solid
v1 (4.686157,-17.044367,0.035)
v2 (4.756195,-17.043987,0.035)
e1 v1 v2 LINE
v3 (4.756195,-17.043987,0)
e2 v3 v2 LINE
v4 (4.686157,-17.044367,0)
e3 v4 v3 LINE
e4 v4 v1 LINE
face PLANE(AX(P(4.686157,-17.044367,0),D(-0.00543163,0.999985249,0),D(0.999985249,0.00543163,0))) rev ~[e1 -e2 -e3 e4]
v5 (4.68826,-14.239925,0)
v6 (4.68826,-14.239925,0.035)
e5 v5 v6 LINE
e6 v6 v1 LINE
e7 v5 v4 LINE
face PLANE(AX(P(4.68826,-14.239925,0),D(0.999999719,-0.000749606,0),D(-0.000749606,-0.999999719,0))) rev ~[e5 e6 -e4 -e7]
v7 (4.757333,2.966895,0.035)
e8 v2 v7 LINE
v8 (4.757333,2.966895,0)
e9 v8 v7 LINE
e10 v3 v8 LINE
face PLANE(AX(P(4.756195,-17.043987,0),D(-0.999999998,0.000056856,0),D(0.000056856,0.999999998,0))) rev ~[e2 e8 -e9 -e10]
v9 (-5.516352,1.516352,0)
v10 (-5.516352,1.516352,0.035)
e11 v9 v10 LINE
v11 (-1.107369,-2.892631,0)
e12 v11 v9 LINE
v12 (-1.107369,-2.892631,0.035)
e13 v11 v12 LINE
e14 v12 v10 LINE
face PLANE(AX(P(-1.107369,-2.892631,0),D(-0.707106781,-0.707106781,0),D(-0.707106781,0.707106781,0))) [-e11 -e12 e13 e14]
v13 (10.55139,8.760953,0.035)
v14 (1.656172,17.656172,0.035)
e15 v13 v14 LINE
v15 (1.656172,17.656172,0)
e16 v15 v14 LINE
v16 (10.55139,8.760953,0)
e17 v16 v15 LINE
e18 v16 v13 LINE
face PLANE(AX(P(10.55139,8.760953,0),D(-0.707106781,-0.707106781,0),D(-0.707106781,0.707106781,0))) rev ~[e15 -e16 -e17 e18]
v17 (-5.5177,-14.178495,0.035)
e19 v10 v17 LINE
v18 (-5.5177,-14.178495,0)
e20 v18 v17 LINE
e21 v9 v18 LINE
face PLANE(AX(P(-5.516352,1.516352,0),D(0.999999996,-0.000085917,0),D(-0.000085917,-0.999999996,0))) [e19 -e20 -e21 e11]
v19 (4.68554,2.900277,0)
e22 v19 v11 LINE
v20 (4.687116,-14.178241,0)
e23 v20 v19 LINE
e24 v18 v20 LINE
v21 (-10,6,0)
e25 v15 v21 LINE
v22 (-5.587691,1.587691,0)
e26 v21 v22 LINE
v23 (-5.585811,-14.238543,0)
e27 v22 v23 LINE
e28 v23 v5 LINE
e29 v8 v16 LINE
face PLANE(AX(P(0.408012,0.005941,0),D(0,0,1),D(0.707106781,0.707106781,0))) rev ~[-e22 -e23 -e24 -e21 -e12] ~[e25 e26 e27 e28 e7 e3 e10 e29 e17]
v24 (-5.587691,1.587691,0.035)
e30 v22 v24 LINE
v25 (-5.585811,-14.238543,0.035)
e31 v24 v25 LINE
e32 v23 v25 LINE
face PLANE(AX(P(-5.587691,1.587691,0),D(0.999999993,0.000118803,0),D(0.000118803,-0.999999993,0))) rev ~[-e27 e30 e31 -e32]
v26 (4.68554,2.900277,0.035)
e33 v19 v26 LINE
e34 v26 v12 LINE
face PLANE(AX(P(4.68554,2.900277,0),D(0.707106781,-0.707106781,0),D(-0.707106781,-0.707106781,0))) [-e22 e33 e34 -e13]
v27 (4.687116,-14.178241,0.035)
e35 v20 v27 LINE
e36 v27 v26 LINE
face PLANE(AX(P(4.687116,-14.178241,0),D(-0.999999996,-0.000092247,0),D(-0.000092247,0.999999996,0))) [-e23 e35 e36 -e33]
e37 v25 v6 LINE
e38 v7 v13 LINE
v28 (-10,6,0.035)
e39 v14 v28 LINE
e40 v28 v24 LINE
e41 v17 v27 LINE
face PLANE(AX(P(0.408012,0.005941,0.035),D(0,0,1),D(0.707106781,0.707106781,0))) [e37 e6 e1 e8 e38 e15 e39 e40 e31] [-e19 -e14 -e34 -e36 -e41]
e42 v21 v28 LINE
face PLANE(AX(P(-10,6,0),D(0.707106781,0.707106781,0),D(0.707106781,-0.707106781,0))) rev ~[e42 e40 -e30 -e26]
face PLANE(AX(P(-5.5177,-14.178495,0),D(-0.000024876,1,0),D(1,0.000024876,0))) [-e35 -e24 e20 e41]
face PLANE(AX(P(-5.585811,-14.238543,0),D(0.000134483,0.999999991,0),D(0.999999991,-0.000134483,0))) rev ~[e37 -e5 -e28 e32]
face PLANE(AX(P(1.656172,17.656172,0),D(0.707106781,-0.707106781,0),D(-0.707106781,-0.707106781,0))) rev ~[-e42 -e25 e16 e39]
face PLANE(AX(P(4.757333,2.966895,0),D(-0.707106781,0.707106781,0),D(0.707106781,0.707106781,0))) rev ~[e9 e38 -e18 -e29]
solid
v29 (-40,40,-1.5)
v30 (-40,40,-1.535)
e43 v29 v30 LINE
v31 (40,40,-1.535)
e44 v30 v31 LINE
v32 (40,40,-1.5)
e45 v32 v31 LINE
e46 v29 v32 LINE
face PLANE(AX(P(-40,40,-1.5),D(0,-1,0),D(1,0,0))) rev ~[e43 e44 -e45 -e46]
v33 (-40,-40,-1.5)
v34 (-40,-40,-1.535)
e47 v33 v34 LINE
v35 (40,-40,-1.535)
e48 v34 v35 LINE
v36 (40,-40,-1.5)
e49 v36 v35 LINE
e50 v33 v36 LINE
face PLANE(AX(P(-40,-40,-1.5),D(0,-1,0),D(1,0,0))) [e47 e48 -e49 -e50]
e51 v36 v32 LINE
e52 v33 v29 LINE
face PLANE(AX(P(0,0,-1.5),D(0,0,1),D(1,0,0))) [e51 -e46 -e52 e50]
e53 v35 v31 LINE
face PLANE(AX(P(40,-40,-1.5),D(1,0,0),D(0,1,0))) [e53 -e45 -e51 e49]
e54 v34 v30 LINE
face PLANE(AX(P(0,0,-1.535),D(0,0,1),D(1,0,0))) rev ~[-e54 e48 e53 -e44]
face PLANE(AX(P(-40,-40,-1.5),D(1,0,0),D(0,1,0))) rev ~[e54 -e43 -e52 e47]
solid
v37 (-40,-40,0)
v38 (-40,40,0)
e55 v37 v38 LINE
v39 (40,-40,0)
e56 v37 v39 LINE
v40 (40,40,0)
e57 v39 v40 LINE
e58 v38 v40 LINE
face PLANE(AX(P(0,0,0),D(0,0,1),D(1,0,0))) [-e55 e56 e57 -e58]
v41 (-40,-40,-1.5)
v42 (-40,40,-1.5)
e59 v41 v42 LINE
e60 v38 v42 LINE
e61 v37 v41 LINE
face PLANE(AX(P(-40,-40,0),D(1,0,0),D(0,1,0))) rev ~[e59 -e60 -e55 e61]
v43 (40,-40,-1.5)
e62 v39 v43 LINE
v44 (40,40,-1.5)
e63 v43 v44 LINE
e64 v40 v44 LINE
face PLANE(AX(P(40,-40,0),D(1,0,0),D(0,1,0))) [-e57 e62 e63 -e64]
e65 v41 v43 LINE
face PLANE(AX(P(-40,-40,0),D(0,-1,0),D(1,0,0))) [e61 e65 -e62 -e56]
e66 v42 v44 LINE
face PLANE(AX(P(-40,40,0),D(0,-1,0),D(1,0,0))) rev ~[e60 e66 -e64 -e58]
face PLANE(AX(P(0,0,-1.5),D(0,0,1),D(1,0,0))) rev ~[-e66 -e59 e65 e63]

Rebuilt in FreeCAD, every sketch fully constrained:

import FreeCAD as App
import Part
import Sketcher

V = App.Vector


def add_polygon(sketch, points):
    """Adds a closed chain of lines whose ends are joined by coincident constraints."""
    first, n = sketch.GeometryCount, len(points)
    for a, b in zip(points, points[1:] + points[:1]):
        sketch.addGeometry(Part.LineSegment(App.Vector(*a, 0), App.Vector(*b, 0)), False)
    for i in range(n):
        sketch.addConstraint(Sketcher.Constraint("Coincident", first + i, 2, first + (i + 1) % n, 1))

doc = App.newDocument("Part")
params = doc.addObject("Spreadsheet::Sheet", "Params")
for row, (alias, value) in enumerate([
    ("pad1_length", "0.035 mm"),
    ("pad2_length", "0.035 mm"),
    ("sketch3_width", "80 mm"),
    ("pad3_length", "1.5 mm"),
    ("sketch4_width", "80 mm"),
    ("pad4_length", "0.035 mm"),
], start=1):
    params.set(f"A{row}", alias)
    params.set(f"B{row}", "=" + value)
    params.setAlias(f"B{row}", alias)

body = doc.addObject("PartDesign::Body", "Body")

sketch1 = doc.addObject("Sketcher::SketchObject", "Sketch")
body.addObject(sketch1)
sketch1.AttachmentSupport = (doc.XY_Plane, [""])
sketch1.MapMode = "FlatFace"
add_polygon(sketch1, [(-11, -17), (-4, -25), (8, -13), (0, -13), (0, -6)])
sketch1.addConstraint(Sketcher.Constraint("Horizontal", 2))
sketch1.addConstraint(Sketcher.Constraint("Vertical", 3))
sketch1.addConstraint(Sketcher.Constraint("PointOnObject", 2, 2, -2))
sketch1.addConstraint(Sketcher.Constraint("DistanceX", 2, 2, 2, 1, 8.19241))
sketch1.addConstraint(Sketcher.Constraint("Distance", 1, 17.078518))
sketch1.addConstraint(Sketcher.Constraint("DistanceY", 3, 1, 3, 2, 6.235244))
sketch1.addConstraint(Sketcher.Constraint("DistanceX", 0, 2, -1, 1, 3.882812))
sketch1.addConstraint(Sketcher.Constraint("DistanceY", 0, 2, -1, 1, 24.65353))
sketch1.addConstraint(Sketcher.Constraint("DistanceY", 4, 2, 3, 2, 11.096979))
sketch1.addConstraint(Sketcher.Constraint("Distance", 0, 10.204816))
pad1 = doc.addObject("PartDesign::Pad", "Pad")
body.addObject(pad1)
pad1.Profile = sketch1
pad1.setExpression("Length", "Params.pad1_length")
body2 = doc.addObject("PartDesign::Body", "Body001")

sketch2 = doc.addObject("Sketcher::SketchObject", "Sketch001")
body2.addObject(sketch2)
sketch2.AttachmentSupport = (doc.getObject("XY_Plane001"), [""])
sketch2.MapMode = "FlatFace"
add_polygon(sketch2, [(0, 0), (0, -6.24), (-11.19, -17.43), (-3.93, -24.7), (-5.91, -26.68), (-5.86, -26.73), (8.29, -12.58), (16.48, -12.58), (16.48, 0)])
sketch2.addConstraint(Sketcher.Constraint("Vertical", 0))
sketch2.addConstraint(Sketcher.Constraint("Horizontal", 6))
sketch2.addConstraint(Sketcher.Constraint("Vertical", 7))
sketch2.addConstraint(Sketcher.Constraint("Horizontal", 8))
sketch2.addConstraint(Sketcher.Constraint("Coincident", 8, 2, -1, 1))
sketch2.addConstraint(Sketcher.Constraint("DistanceY", 7, 1, 7, 2, 12.579739))
sketch2.addConstraint(Sketcher.Constraint("DistanceX", 2, 2, 5, 2, 12.215901))
sketch2.addConstraint(Sketcher.Constraint("Distance", 2, 10.274071))
sketch2.addConstraint(Sketcher.Constraint("Distance", 4, 0.070039))
sketch2.addConstraint(Sketcher.Constraint("DistanceX", 6, 1, 6, 2, 8.194035))
sketch2.addConstraint(Sketcher.Constraint("DistanceX", 8, 2, 8, 1, 16.484316))
sketch2.addConstraint(Sketcher.Constraint("DistanceY", 0, 2, 0, 1, 6.239947))
sketch2.addConstraint(Sketcher.Constraint("DistanceY", 3, 2, -1, 1, 26.67951))
sketch2.addConstraint(Sketcher.Constraint("DistanceY", 2, 2, 0, 2, 18.458009))
sketch2.addConstraint(Sketcher.Constraint("DistanceX", 1, 2, 3, 2, 5.279361))
sketch2.addConstraint(Sketcher.Constraint("DistanceY", 4, 2, 2, 2, 2.030809))
sketch2.addConstraint(Sketcher.Constraint("DistanceY", 4, 2, 1, 2, 9.296651))
pad2 = doc.addObject("PartDesign::Pad", "Pad001")
body2.addObject(pad2)
pad2.Profile = sketch2
pad2.setExpression("Length", "Params.pad2_length")
doc.recompute()

boolean = doc.addObject("PartDesign::Boolean", "Boolean")
body2.addObject(boolean)
boolean.Type = "Cut"
boolean.addObjects([body])
body3 = doc.addObject("PartDesign::Body", "Body002")
doc.recompute()

body2.Placement = App.Placement(V(-10, 6, 0), App.Rotation(V(0, 0, 1), 45))
boolean2 = doc.addObject("PartDesign::Boolean", "Boolean001")
body3.addObject(boolean2)
boolean2.Type = "Fuse"
boolean2.addObjects([body2])
body4 = doc.addObject("PartDesign::Body", "Body003")

sketch3 = doc.addObject("Sketcher::SketchObject", "Sketch002")
body4.addObject(sketch3)
sketch3.AttachmentSupport = (doc.getObject("XY_Plane003"), [""])
sketch3.MapMode = "FlatFace"
add_polygon(sketch3, [(-40, 40), (-40, -40), (40, -40), (40, 40)])
sketch3.addConstraint(Sketcher.Constraint("Vertical", 0))
sketch3.addConstraint(Sketcher.Constraint("Horizontal", 1))
sketch3.addConstraint(Sketcher.Constraint("Vertical", 2))
sketch3.addConstraint(Sketcher.Constraint("Horizontal", 3))
sketch3.addConstraint(Sketcher.Constraint("Symmetric", 0, 2, 2, 2, -1, 1))
sketch3.addConstraint(Sketcher.Constraint("Equal", 3, 0))
sketch3.addConstraint(Sketcher.Constraint("DistanceX", 1, 1, 1, 2, 80.0))
sketch3.setExpression("Constraints[10]", "Params.sketch3_width")
pad3 = doc.addObject("PartDesign::Pad", "Pad002")
body4.addObject(pad3)
pad3.Profile = sketch3
pad3.setExpression("Length", "Params.pad3_length")
pad3.Reversed = True
body5 = doc.addObject("PartDesign::Body", "Body004")

sketch4 = doc.addObject("Sketcher::SketchObject", "Sketch003")
body5.addObject(sketch4)
sketch4.AttachmentSupport = (doc.getObject("XY_Plane004"), [""])
sketch4.MapMode = "FlatFace"
add_polygon(sketch4, [(-40, 40), (-40, -40), (40, -40), (40, 40)])
sketch4.addConstraint(Sketcher.Constraint("Vertical", 0))
sketch4.addConstraint(Sketcher.Constraint("Horizontal", 1))
sketch4.addConstraint(Sketcher.Constraint("Vertical", 2))
sketch4.addConstraint(Sketcher.Constraint("Horizontal", 3))
sketch4.addConstraint(Sketcher.Constraint("Symmetric", 0, 2, 2, 2, -1, 1))
sketch4.addConstraint(Sketcher.Constraint("Equal", 3, 0))
sketch4.addConstraint(Sketcher.Constraint("DistanceX", 1, 1, 1, 2, 80.0))
sketch4.setExpression("Constraints[10]", "Params.sketch4_width")
pad4 = doc.addObject("PartDesign::Pad", "Pad003")
body5.addObject(pad4)
pad4.Profile = sketch4
pad4.setExpression("Length", "Params.pad4_length")
pad4.Reversed = True
body6 = doc.addObject("PartDesign::Body", "Body005")
doc.recompute()

body5.Placement = App.Placement(V(0, 0, -1.5), App.Rotation(V(0, 0, 1), 0))
boolean3 = doc.addObject("PartDesign::Boolean", "Boolean002")
body6.addObject(boolean3)
boolean3.Type = "Fuse"
boolean3.addObjects([body5])

doc.recompute()
